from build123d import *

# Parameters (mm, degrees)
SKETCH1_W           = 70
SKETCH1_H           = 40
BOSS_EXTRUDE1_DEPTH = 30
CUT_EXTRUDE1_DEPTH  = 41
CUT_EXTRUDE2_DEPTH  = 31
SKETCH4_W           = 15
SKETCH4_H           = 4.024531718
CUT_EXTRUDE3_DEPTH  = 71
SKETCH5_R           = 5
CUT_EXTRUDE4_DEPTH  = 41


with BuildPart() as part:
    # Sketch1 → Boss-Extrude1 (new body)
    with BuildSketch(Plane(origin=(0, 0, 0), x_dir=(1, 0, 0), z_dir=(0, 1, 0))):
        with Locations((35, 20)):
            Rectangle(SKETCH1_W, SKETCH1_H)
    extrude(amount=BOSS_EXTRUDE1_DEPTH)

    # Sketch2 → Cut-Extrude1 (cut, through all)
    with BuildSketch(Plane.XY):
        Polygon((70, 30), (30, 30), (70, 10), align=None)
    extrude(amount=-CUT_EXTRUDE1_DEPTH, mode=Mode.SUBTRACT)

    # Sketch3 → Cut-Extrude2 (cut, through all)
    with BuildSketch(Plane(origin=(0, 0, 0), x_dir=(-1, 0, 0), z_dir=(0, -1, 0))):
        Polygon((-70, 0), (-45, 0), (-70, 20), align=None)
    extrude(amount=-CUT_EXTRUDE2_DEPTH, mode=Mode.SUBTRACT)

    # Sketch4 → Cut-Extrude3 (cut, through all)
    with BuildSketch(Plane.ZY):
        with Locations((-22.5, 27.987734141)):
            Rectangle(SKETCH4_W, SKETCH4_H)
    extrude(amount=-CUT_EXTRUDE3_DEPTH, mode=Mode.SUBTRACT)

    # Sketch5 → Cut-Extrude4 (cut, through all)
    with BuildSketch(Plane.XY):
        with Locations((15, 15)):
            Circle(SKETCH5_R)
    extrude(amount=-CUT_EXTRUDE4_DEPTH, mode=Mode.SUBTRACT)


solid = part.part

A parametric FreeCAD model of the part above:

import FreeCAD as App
import Part
import Sketcher

doc = App.newDocument("Part")
params = doc.addObject("Spreadsheet::Sheet", "Params")
for row, (alias, value) in enumerate([
    ("sketch1_width", "70 mm"),
    ("sketch1_height", "40 mm"),
    ("pad1_length", "30 mm"),
    ("sketch2_width", "40 mm"),
    ("sketch2_height", "20 mm"),
    ("sketch3_width", "25 mm"),
    ("sketch3_height", "20 mm"),
    ("sketch4_height", "15 mm"),
    ("sketch5_diameter", "10 mm"),
], start=1):
    params.set(f"A{row}", alias)
    params.set(f"B{row}", "=" + value)
    params.setAlias(f"B{row}", alias)

body = doc.addObject("PartDesign::Body", "Body")

sketch1 = body.newObject("Sketcher::SketchObject", "Sketch")
sketch1.AttachmentSupport = (doc.getObject("XZ_Plane"), [""])
sketch1.MapMode = "FlatFace"
sketch1.addGeometry([
    Part.LineSegment(App.Vector(0, -40, 0), App.Vector(0, 0, 0)),
    Part.LineSegment(App.Vector(0, 0, 0), App.Vector(70, 0, 0)),
    Part.LineSegment(App.Vector(70, 0, 0), App.Vector(70, -40, 0)),
    Part.LineSegment(App.Vector(70, -40, 0), App.Vector(0, -40, 0)),
], False)
sketch1.addConstraint([
    Sketcher.Constraint("Coincident", 0, 2, 1, 1),
    Sketcher.Constraint("Coincident", 1, 2, 2, 1),
    Sketcher.Constraint("Coincident", 2, 2, 3, 1),
    Sketcher.Constraint("Coincident", 3, 2, 0, 1),
    Sketcher.Constraint("Vertical", 0),
    Sketcher.Constraint("Horizontal", 1),
    Sketcher.Constraint("Vertical", 2),
    Sketcher.Constraint("Horizontal", 3),
    Sketcher.Constraint("Coincident", 0, 2, -1, 1),
    Sketcher.Constraint("DistanceX", 1, 1, 1, 2, 70.0),
    Sketcher.Constraint("DistanceY", 0, 1, 0, 2, 40.0),
])
sketch1.setExpression("Constraints[9]", "Params.sketch1_width")
sketch1.setExpression("Constraints[10]", "Params.sketch1_height")
pad1 = body.newObject("PartDesign::Pad", "Pad")
pad1.Profile = sketch1
pad1.setExpression("Length", "Params.pad1_length")
pad1.Reversed = True

sketch2 = body.newObject("Sketcher::SketchObject", "Sketch001")
sketch2.AttachmentSupport = (doc.getObject("XY_Plane"), [""])
sketch2.MapMode = "FlatFace"
sketch2.addGeometry([
    Part.LineSegment(App.Vector(70, 30, 0), App.Vector(30, 30, 0)),
    Part.LineSegment(App.Vector(30, 30, 0), App.Vector(70, 10, 0)),
    Part.LineSegment(App.Vector(70, 10, 0), App.Vector(70, 30, 0)),
], False)
sketch2.addConstraint([
    Sketcher.Constraint("Coincident", 0, 2, 1, 1),
    Sketcher.Constraint("Coincident", 1, 2, 2, 1),
    Sketcher.Constraint("Coincident", 2, 2, 0, 1),
    Sketcher.Constraint("Horizontal", 0),
    Sketcher.Constraint("Vertical", 2),
    Sketcher.Constraint("DistanceX", 0, 2, 0, 1, 40.0),
    Sketcher.Constraint("DistanceY", 2, 1, 2, 2, 20.0),
    Sketcher.Constraint("DistanceX", -1, 1, 0, 2, 30.0),
    Sketcher.Constraint("DistanceY", -1, 1, 0, 2, 30.0),
])
sketch2.setExpression("Constraints[5]", "Params.sketch2_width")
sketch2.setExpression("Constraints[6]", "Params.sketch2_height")
pocket1 = body.newObject("PartDesign::Pocket", "Pocket")
pocket1.Profile = sketch2
pocket1.Type = "ThroughAll"

sketch3 = body.newObject("Sketcher::SketchObject", "Sketch002")
sketch3.AttachmentSupport = (doc.getObject("XZ_Plane"), [""])
sketch3.MapMode = "FlatFace"
sketch3.addGeometry([
    Part.LineSegment(App.Vector(70, 0, 0), App.Vector(45, 0, 0)),
    Part.LineSegment(App.Vector(45, 0, 0), App.Vector(70, -20, 0)),
    Part.LineSegment(App.Vector(70, -20, 0), App.Vector(70, 0, 0)),
], False)
sketch3.addConstraint([
    Sketcher.Constraint("Coincident", 0, 2, 1, 1),
    Sketcher.Constraint("Coincident", 1, 2, 2, 1),
    Sketcher.Constraint("Coincident", 2, 2, 0, 1),
    Sketcher.Constraint("Horizontal", 0),
    Sketcher.Constraint("Vertical", 2),
    Sketcher.Constraint("PointOnObject", 0, 2, -1),
    Sketcher.Constraint("DistanceX", 0, 2, 0, 1, 25.0),
    Sketcher.Constraint("DistanceY", 2, 1, 2, 2, 20.0),
    Sketcher.Constraint("DistanceX", -1, 1, 0, 2, 45.0),
])
sketch3.setExpression("Constraints[6]", "Params.sketch3_width")
sketch3.setExpression("Constraints[7]", "Params.sketch3_height")
pocket2 = body.newObject("PartDesign::Pocket", "Pocket001")
pocket2.Profile = sketch3
pocket2.Type = "ThroughAll"

sketch4 = body.newObject("Sketcher::SketchObject", "Sketch003")
sketch4.AttachmentSupport = (doc.getObject("YZ_Plane"), [""])
sketch4.MapMode = "FlatFace"
sketch4.addGeometry([
    Part.LineSegment(App.Vector(30, -30, 0), App.Vector(26, -30, 0)),
    Part.LineSegment(App.Vector(26, -30, 0), App.Vector(26, -15, 0)),
    Part.LineSegment(App.Vector(26, -15, 0), App.Vector(30, -15, 0)),
    Part.LineSegment(App.Vector(30, -15, 0), App.Vector(30, -30, 0)),
], False)
sketch4.addConstraint([
    Sketcher.Constraint("Coincident", 0, 2, 1, 1),
    Sketcher.Constraint("Coincident", 1, 2, 2, 1),
    Sketcher.Constraint("Coincident", 2, 2, 3, 1),
    Sketcher.Constraint("Coincident", 3, 2, 0, 1),
    Sketcher.Constraint("Horizontal", 0),
    Sketcher.Constraint("Vertical", 1),
    Sketcher.Constraint("Horizontal", 2),
    Sketcher.Constraint("Vertical", 3),
    Sketcher.Constraint("DistanceY", 1, 1, 1, 2, 15.0),
    Sketcher.Constraint("DistanceY", 0, 2, -1, 1, 30.0),
    Sketcher.Constraint("DistanceX", -1, 1, 2, 2, 30.0),
    Sketcher.Constraint("DistanceX", 0, 2, 0, 1, 4.024532),
])
sketch4.setExpression("Constraints[8]", "Params.sketch4_height")
pocket3 = body.newObject("PartDesign::Pocket", "Pocket002")
pocket3.Profile = sketch4
pocket3.Type = "ThroughAll"
pocket3.Reversed = True

sketch5 = body.newObject("Sketcher::SketchObject", "Sketch004")
sketch5.AttachmentSupport = (doc.getObject("XY_Plane"), [""])
sketch5.MapMode = "FlatFace"
sketch5.addGeometry(Part.Circle(App.Vector(15, 15, 0), App.Vector(0, 0, 1), 5), False)
sketch5.addConstraint([
    Sketcher.Constraint("Diameter", 0, 10.0),
    Sketcher.Constraint("DistanceX", -1, 1, 0, 3, 15.0),
    Sketcher.Constraint("DistanceY", -1, 1, 0, 3, 15.0),
])
sketch5.setExpression("Constraints[0]", "Params.sketch5_diameter")
pocket4 = body.newObject("PartDesign::Pocket", "Pocket003")
pocket4.Profile = sketch5
pocket4.Type = "ThroughAll"

doc.recompute()
